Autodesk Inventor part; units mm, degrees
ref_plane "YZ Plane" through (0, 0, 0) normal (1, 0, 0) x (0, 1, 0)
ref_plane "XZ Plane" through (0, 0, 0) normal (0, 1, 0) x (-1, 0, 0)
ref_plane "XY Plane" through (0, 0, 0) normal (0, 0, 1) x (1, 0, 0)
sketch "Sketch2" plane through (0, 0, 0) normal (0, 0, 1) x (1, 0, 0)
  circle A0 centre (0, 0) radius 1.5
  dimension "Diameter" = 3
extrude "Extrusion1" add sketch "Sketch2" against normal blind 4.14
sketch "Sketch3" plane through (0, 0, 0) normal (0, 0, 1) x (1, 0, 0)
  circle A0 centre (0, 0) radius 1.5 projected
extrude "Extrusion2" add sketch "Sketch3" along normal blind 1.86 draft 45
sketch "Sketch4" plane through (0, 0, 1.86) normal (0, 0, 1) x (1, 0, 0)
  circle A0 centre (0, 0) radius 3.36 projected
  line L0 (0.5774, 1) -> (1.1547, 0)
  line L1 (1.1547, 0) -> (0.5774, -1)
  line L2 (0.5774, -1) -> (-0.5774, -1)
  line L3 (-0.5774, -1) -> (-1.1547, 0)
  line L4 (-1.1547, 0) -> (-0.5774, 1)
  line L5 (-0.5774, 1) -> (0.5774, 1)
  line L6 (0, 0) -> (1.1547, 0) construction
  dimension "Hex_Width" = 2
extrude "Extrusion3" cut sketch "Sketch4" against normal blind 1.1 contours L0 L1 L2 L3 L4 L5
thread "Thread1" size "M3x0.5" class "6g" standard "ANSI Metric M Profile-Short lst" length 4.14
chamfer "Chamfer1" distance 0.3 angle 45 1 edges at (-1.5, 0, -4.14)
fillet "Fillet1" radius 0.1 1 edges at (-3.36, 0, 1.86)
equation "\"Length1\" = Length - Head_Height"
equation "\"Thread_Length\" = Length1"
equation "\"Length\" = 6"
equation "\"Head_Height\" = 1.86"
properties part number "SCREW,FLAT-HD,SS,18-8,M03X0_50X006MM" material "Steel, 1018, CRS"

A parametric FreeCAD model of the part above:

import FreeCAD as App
import Part
import Sketcher
from FreeCAD import Vector
Q = App.Units.Quantity


def edges_at(feature, points):
    """Names of the edges that pass closest to the given points."""
    edges = feature.Shape.Edges
    near = lambda p: min(range(len(edges)), key=lambda i: edges[i].distToShape(Part.Vertex(*p))[0])
    return sorted({f"Edge{near(p) + 1}" for p in points})


def add_polygon(sketch, points):
    """Adds a closed chain of lines whose ends are joined by coincident constraints."""
    first, n = sketch.GeometryCount, len(points)
    for a, b in zip(points, points[1:] + points[:1]):
        sketch.addGeometry(Part.LineSegment(App.Vector(*a, 0), App.Vector(*b, 0)), False)
    for i in range(n):
        sketch.addConstraint(Sketcher.Constraint("Coincident", first + i, 2, first + (i + 1) % n, 1))

doc = App.newDocument("Part")
body = doc.addObject("PartDesign::Body", "Body")

# Sketch on XY plane
sketch1 = doc.addObject("Sketcher::SketchObject", "Sketch")
body.addObject(sketch1)
sketch1.AttachmentSupport = (doc.XY_Plane, [""])
sketch1.MapMode = "FlatFace"
sketch1.addGeometry(Part.Circle(Vector(0, 0, 0), Vector(0, 0, 1), 1.5), False)
sketch1.addConstraint([
    Sketcher.Constraint("Coincident", 0, 3, -1, 1),
    Sketcher.Constraint("Diameter", 0, Q("3 mm")),
])
pad1 = doc.addObject("PartDesign::Pad", "Pad")
body.addObject(pad1)
pad1.Profile = sketch1
pad1.Length = 4.14
pad1.Reversed = True

# Sketch on XY plane
sketch2 = doc.addObject("Sketcher::SketchObject", "Sketch001")
body.addObject(sketch2)
sketch2.AttachmentSupport = (doc.XY_Plane, [""])
sketch2.MapMode = "FlatFace"
sketch2.addGeometry(Part.Circle(Vector(0, 0, 0), Vector(0, 0, 1), 1.5), False)
sketch2.addConstraint([
    Sketcher.Constraint("Coincident", 0, 3, -1, 1),
    Sketcher.Constraint("Diameter", 0, Q("3 mm")),
])
pad2 = doc.addObject("PartDesign::Pad", "Pad001")
body.addObject(pad2)
pad2.Profile = sketch2
pad2.Length = 1.86
pad2.TaperAngle = 45

# Sketch on XY plane
sketch3 = doc.addObject("Sketcher::SketchObject", "Sketch002")
body.addObject(sketch3)
sketch3.AttachmentSupport = (doc.XY_Plane, [""])
sketch3.MapMode = "FlatFace"
sketch3.AttachmentOffset = App.Placement(Vector(0, 0, 1.86), App.Rotation())
add_polygon(sketch3, [(1.2, 0), (0.6, 1), (-0.6, 1), (-1.2, 0), (-0.6, -1), (0.6, -1)])  # lines 0-5
sketch3.addConstraint([
    Sketcher.Constraint("Horizontal", 1),
    Sketcher.Constraint("Horizontal", 4),
    Sketcher.Constraint("Symmetric", 0, 2, 3, 2, -1, 1),
    Sketcher.Constraint("Symmetric", 2, 2, 5, 2, -1, 1),
    Sketcher.Constraint("PointOnObject", 2, 2, -1),
    Sketcher.Constraint("Parallel", 2, 5),
    Sketcher.Constraint("Vertical", 1, 2, 3, 2),
    Sketcher.Constraint("DistanceY", 3, 2, 1, 2, Q("2 mm")),
    Sketcher.Constraint("DistanceX", 1, 2, 1, 1, Q("1.1548 mm")),
    Sketcher.Constraint("DistanceX", 2, 2, 0, 2, Q("1.732 mm")),
])
pocket1 = doc.addObject("PartDesign::Pocket", "Pocket")
body.addObject(pocket1)
pocket1.Profile = sketch3
pocket1.Length = 1.1
doc.recompute()

chamfer = doc.addObject("PartDesign::Chamfer", "Chamfer")
body.addObject(chamfer)
chamfer.Base = (pocket1, edges_at(pocket1, [(-1.5, 0, -4.14)]))
chamfer.Size = 0.3
doc.recompute()

fillet = doc.addObject("PartDesign::Fillet", "Fillet")
body.addObject(fillet)
fillet.Base = (chamfer, edges_at(chamfer, [(-3.36, 0, 1.86)]))
fillet.Radius = 0.1

doc.recompute()
